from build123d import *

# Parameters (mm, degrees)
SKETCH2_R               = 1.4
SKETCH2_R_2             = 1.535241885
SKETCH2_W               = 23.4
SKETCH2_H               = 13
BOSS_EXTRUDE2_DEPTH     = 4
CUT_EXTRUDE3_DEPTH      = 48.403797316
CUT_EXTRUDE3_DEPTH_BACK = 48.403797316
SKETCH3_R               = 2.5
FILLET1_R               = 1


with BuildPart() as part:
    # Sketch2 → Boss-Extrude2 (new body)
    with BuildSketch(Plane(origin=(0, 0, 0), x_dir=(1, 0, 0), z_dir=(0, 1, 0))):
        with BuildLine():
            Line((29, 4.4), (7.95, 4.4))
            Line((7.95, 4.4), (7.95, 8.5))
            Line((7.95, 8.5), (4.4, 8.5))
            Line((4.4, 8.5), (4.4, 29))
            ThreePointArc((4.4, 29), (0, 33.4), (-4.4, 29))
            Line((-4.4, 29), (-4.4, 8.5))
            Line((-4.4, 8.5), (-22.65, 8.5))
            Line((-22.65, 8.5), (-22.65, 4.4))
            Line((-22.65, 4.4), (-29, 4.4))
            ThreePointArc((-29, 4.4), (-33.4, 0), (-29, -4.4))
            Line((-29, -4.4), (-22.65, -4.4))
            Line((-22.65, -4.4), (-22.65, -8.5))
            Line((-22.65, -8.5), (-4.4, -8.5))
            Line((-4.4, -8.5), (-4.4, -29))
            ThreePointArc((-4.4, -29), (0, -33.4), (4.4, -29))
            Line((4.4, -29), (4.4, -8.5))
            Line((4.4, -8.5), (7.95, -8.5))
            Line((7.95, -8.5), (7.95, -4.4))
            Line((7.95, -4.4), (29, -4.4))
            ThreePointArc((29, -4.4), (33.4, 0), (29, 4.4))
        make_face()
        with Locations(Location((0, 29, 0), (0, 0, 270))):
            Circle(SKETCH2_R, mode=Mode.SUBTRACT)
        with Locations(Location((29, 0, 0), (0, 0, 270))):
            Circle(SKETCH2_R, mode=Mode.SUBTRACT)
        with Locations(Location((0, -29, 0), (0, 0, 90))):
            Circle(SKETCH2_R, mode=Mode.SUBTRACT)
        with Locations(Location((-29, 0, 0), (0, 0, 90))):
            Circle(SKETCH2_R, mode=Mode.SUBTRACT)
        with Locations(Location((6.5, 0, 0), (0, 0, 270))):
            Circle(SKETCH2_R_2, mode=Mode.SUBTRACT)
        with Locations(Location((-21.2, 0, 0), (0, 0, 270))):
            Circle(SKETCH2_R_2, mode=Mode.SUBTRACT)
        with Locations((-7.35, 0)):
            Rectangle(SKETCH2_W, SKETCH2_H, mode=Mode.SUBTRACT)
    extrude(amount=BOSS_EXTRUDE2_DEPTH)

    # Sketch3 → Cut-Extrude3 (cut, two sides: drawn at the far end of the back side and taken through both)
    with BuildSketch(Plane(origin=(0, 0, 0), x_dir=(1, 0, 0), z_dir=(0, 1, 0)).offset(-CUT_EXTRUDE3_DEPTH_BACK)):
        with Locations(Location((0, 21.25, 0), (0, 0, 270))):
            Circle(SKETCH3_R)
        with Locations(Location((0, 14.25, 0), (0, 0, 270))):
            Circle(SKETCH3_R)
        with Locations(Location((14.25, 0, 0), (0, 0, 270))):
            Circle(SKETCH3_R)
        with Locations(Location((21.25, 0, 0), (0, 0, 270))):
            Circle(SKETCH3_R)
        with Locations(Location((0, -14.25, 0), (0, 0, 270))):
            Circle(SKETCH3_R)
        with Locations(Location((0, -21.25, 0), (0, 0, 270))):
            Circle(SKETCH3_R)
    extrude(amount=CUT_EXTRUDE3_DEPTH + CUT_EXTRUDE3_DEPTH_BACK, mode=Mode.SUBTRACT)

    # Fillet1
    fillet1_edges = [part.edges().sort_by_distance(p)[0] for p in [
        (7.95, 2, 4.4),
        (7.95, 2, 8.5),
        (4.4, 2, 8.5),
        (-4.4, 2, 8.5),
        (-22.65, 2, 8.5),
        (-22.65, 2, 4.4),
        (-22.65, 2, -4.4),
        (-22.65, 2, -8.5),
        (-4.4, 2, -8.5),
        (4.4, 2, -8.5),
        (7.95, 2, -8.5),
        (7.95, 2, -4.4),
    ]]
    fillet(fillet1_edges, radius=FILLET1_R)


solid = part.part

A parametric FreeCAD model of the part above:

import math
import FreeCAD as App
import Part
import Sketcher
Q = App.Units.Quantity


def edges_at(feature, points):
    """Names of the edges that pass closest to the given points."""
    edges = feature.Shape.Edges
    near = lambda p: min(range(len(edges)), key=lambda i: edges[i].distToShape(Part.Vertex(*p))[0])
    return sorted({f"Edge{near(p) + 1}" for p in points})


def add_polygon(sketch, points):
    """Adds a closed chain of lines whose ends are joined by coincident constraints."""
    first, n = sketch.GeometryCount, len(points)
    for a, b in zip(points, points[1:] + points[:1]):
        sketch.addGeometry(Part.LineSegment(App.Vector(*a, 0), App.Vector(*b, 0)), False)
    for i in range(n):
        sketch.addConstraint(Sketcher.Constraint("Coincident", first + i, 2, first + (i + 1) % n, 1))

doc = App.newDocument("Part")
body = doc.addObject("PartDesign::Body", "Body")

# Sketch on XZ plane
sketch1 = body.newObject("Sketcher::SketchObject", "Sketch")
sketch1.AttachmentSupport = (doc.getObject("XZ_Plane"), [""])
sketch1.MapMode = "FlatFace"
sketch1.addGeometry(Part.LineSegment(App.Vector(29, -4.4, 0), App.Vector(8, -4.4, 0)), False)  # 0
sketch1.addGeometry(Part.LineSegment(App.Vector(8, -4.4, 0), App.Vector(8, -8.5, 0)), False)  # 1
sketch1.addGeometry(Part.LineSegment(App.Vector(8, -8.5, 0), App.Vector(4.4, -8.5, 0)), False)  # 2
sketch1.addGeometry(Part.LineSegment(App.Vector(4.4, -8.5, 0), App.Vector(4.4, -29, 0)), False)  # 3
sketch1.addGeometry(Part.ArcOfCircle(Part.Circle(App.Vector(0, -29, 0), App.Vector(0, 0, 1), 4.4), math.radians(180), math.radians(360)), False)  # 4
sketch1.addGeometry(Part.LineSegment(App.Vector(-4.4, -29, 0), App.Vector(-4.4, -8.5, 0)), False)  # 5
sketch1.addGeometry(Part.LineSegment(App.Vector(-4.4, -8.5, 0), App.Vector(-22.6, -8.5, 0)), False)  # 6
sketch1.addGeometry(Part.LineSegment(App.Vector(-22.6, -8.5, 0), App.Vector(-22.6, -4.4, 0)), False)  # 7
sketch1.addGeometry(Part.LineSegment(App.Vector(-22.6, -4.4, 0), App.Vector(-29, -4.4, 0)), False)  # 8
sketch1.addGeometry(Part.ArcOfCircle(Part.Circle(App.Vector(-29, 0, 0), App.Vector(0, 0, 1), 4.4), math.radians(90), math.radians(270)), False)  # 9
sketch1.addGeometry(Part.LineSegment(App.Vector(-29, 4.4, 0), App.Vector(-22.6, 4.4, 0)), False)  # 10
sketch1.addGeometry(Part.LineSegment(App.Vector(-22.6, 4.4, 0), App.Vector(-22.6, 8.5, 0)), False)  # 11
sketch1.addGeometry(Part.LineSegment(App.Vector(-22.6, 8.5, 0), App.Vector(-4.4, 8.5, 0)), False)  # 12
sketch1.addGeometry(Part.LineSegment(App.Vector(-4.4, 8.5, 0), App.Vector(-4.4, 29, 0)), False)  # 13
sketch1.addGeometry(Part.ArcOfCircle(Part.Circle(App.Vector(0, 29, 0), App.Vector(0, 0, 1), 4.4), math.radians(0), math.radians(180)), False)  # 14
sketch1.addGeometry(Part.LineSegment(App.Vector(4.4, 29, 0), App.Vector(4.4, 8.5, 0)), False)  # 15
sketch1.addGeometry(Part.LineSegment(App.Vector(4.4, 8.5, 0), App.Vector(8, 8.5, 0)), False)  # 16
sketch1.addGeometry(Part.LineSegment(App.Vector(8, 8.5, 0), App.Vector(8, 4.4, 0)), False)  # 17
sketch1.addGeometry(Part.LineSegment(App.Vector(8, 4.4, 0), App.Vector(29, 4.4, 0)), False)  # 18
sketch1.addGeometry(Part.ArcOfCircle(Part.Circle(App.Vector(29, 0, 0), App.Vector(0, 0, 1), 4.4), math.radians(-90), math.radians(90)), False)  # 19
sketch1.addGeometry(Part.Circle(App.Vector(0, 29, 0), App.Vector(0, 0, 1), 1.4), False)  # 20
sketch1.addGeometry(Part.Circle(App.Vector(-29, 0, 0), App.Vector(0, 0, 1), 1.4), False)  # 21
sketch1.addGeometry(Part.Circle(App.Vector(-21.2, 0, 0), App.Vector(0, 0, 1), 1.5), False)  # 22
add_polygon(sketch1, [(4.3, 6.5), (-19.1, 6.5), (-19.1, -6.5), (4.3, -6.5)])  # lines 23-26
sketch1.addGeometry(Part.Circle(App.Vector(6.5, 0, 0), App.Vector(0, 0, 1), 1.5), False)  # 27
sketch1.addGeometry(Part.Circle(App.Vector(29, 0, 0), App.Vector(0, 0, 1), 1.4), False)  # 28
sketch1.addGeometry(Part.Circle(App.Vector(0, -29, 0), App.Vector(0, 0, 1), 1.4), False)  # 29
sketch1.addConstraint([
    Sketcher.Constraint("Coincident", 0, 2, 1, 1),
    Sketcher.Constraint("Coincident", 1, 2, 2, 1),
    Sketcher.Constraint("Coincident", 2, 2, 3, 1),
    Sketcher.Constraint("Tangent", 3, 2, 4, 2),
    Sketcher.Constraint("Tangent", 4, 1, 5, 1),
    Sketcher.Constraint("Coincident", 5, 2, 6, 1),
    Sketcher.Constraint("Coincident", 6, 2, 7, 1),
    Sketcher.Constraint("Coincident", 7, 2, 8, 1),
    Sketcher.Constraint("Tangent", 8, 2, 9, 2),
    Sketcher.Constraint("Tangent", 9, 1, 10, 1),
    Sketcher.Constraint("Coincident", 10, 2, 11, 1),
    Sketcher.Constraint("Coincident", 11, 2, 12, 1),
    Sketcher.Constraint("Coincident", 12, 2, 13, 1),
    Sketcher.Constraint("Tangent", 13, 2, 14, 2),
    Sketcher.Constraint("Tangent", 14, 1, 15, 1),
    Sketcher.Constraint("Coincident", 15, 2, 16, 1),
    Sketcher.Constraint("Coincident", 16, 2, 17, 1),
    Sketcher.Constraint("Coincident", 17, 2, 18, 1),
    Sketcher.Constraint("Tangent", 18, 2, 19, 2),
    Sketcher.Constraint("Tangent", 19, 1, 0, 1),
    Sketcher.Constraint("Horizontal", 0),
    Sketcher.Constraint("Vertical", 1),
    Sketcher.Constraint("Horizontal", 2),
    Sketcher.Constraint("Vertical", 3),
    Sketcher.Constraint("Vertical", 5),
    Sketcher.Constraint("Horizontal", 6),
    Sketcher.Constraint("Vertical", 7),
    Sketcher.Constraint("Horizontal", 8),
    Sketcher.Constraint("Horizontal", 10),
    Sketcher.Constraint("Vertical", 11),
    Sketcher.Constraint("Horizontal", 12),
    Sketcher.Constraint("Vertical", 13),
    Sketcher.Constraint("Vertical", 15),
    Sketcher.Constraint("Horizontal", 16),
    Sketcher.Constraint("Vertical", 17),
    Sketcher.Constraint("Horizontal", 18),
    Sketcher.Constraint("Horizontal", 23),
    Sketcher.Constraint("Vertical", 24),
    Sketcher.Constraint("Horizontal", 25),
    Sketcher.Constraint("Vertical", 26),
    Sketcher.Constraint("Coincident", 20, 3, 14, 3),
    Sketcher.Constraint("Coincident", 21, 3, 9, 3),
    Sketcher.Constraint("Coincident", 28, 3, 19, 3),
    Sketcher.Constraint("Coincident", 29, 3, 4, 3),
    Sketcher.Constraint("Equal", 4, 9),
    Sketcher.Constraint("Equal", 9, 14),
    Sketcher.Constraint("Equal", 14, 19),
    Sketcher.Constraint("Equal", 20, 21),
    Sketcher.Constraint("Equal", 22, 27),
    Sketcher.Constraint("Equal", 21, 28),
    Sketcher.Constraint("Equal", 28, 29),
    Sketcher.Constraint("Symmetric", 4, 3, 14, 3, -1, 1),
    Sketcher.Constraint("Symmetric", 9, 3, 19, 3, -1, 1),
    Sketcher.Constraint("Symmetric", 2, 2, 5, 2, -2),
    Sketcher.Constraint("Symmetric", 7, 2, 10, 2, -1),
    Sketcher.Constraint("Symmetric", 1, 2, 16, 2, -1),
    Sketcher.Constraint("PointOnObject", 22, 3, -1),
    Sketcher.Constraint("PointOnObject", 27, 3, -1),
    Sketcher.Constraint("Horizontal", 12, 2, 15, 2),
    Sketcher.Constraint("Diameter", 20, Q("2.8 mm")),
    Sketcher.Constraint("Radius", 4, Q("4.4 mm")),
    Sketcher.Constraint("DistanceY", 24, 2, 24, 1, Q("13 mm")),
    Sketcher.Constraint("DistanceX", 23, 2, 23, 1, Q("23.4 mm")),
    Sketcher.Constraint("DistanceY", 1, 2, 1, 1, Q("4.1 mm")),
    Sketcher.Constraint("DistanceY", 3, 2, 3, 1, Q("20.5 mm")),
    Sketcher.Constraint("DistanceX", 9, 3, -1, 1, Q("29 mm")),
    Sketcher.Constraint("DistanceY", 23, 2, 11, 2, Q("2 mm")),
    Sketcher.Constraint("DistanceX", 0, 2, 0, 1, Q("21.05 mm")),
    Sketcher.Constraint("DistanceX", 6, 2, 6, 1, Q("18.25 mm")),
    Sketcher.Constraint("DistanceX", 22, 3, -1, 1, Q("21.2 mm")),
    Sketcher.Constraint("DistanceX", -1, 1, 27, 3, Q("6.5 mm")),
    Sketcher.Constraint("DistanceX", 11, 2, 23, 2, Q("3.6 mm")),
    Sketcher.Constraint("Diameter", 22, Q("3.070484 mm")),
])
pad1 = body.newObject("PartDesign::Pad", "Pad")
pad1.Profile = sketch1
pad1.Length = 4
pad1.Reversed = True

# Sketch on XZ plane
sketch2 = body.newObject("Sketcher::SketchObject", "Sketch001")
sketch2.AttachmentSupport = (doc.getObject("XZ_Plane"), [""])
sketch2.MapMode = "FlatFace"
sketch2.addGeometry([
    Part.Circle(App.Vector(0, -21.2, 0), App.Vector(0, 0, 1), 2.5),  # 0
    Part.Circle(App.Vector(0, -14.2, 0), App.Vector(0, 0, 1), 2.5),  # 1
    Part.Circle(App.Vector(14.2, 0, 0), App.Vector(0, 0, 1), 2.5),  # 2
    Part.Circle(App.Vector(21.2, 0, 0), App.Vector(0, 0, 1), 2.5),  # 3
    Part.Circle(App.Vector(0, 14.2, 0), App.Vector(0, 0, 1), 2.5),  # 4
    Part.Circle(App.Vector(0, 21.2, 0), App.Vector(0, 0, 1), 2.5),  # 5
], False)
sketch2.addConstraint([
    Sketcher.Constraint("Equal", 0, 1),
    Sketcher.Constraint("Equal", 1, 2),
    Sketcher.Constraint("Equal", 2, 3),
    Sketcher.Constraint("Equal", 3, 4),
    Sketcher.Constraint("Equal", 4, 5),
    Sketcher.Constraint("Symmetric", 1, 3, 4, 3, -1, 1),
    Sketcher.Constraint("Symmetric", 0, 3, 5, 3, -1, 1),
    Sketcher.Constraint("PointOnObject", 0, 3, -2),
    Sketcher.Constraint("PointOnObject", 1, 3, -2),
    Sketcher.Constraint("PointOnObject", 2, 3, -1),
    Sketcher.Constraint("PointOnObject", 3, 3, -1),
    Sketcher.Constraint("Diameter", 0, Q("5 mm")),
    Sketcher.Constraint("DistanceY", 0, 3, 1, 3, Q("7 mm")),
    Sketcher.Constraint("DistanceX", 2, 3, 3, 3, Q("7 mm")),
    Sketcher.Constraint("DistanceY", 1, 3, 4, 3, Q("28.5 mm")),
    Sketcher.Constraint("DistanceX", -1, 1, 2, 3, Q("14.25 mm")),
])
pocket1 = body.newObject("PartDesign::Pocket", "Pocket")
pocket1.Profile = sketch2
pocket1.Type = "ThroughAll"
pocket1.Midplane = True
doc.recompute()

fillet = body.newObject("PartDesign::Fillet", "Fillet")
fillet.Base = (pocket1, edges_at(pocket1, [
    (7.95, 2, 4.4),
    (7.95, 2, 8.5),
    (4.4, 2, 8.5),
    (-4.4, 2, 8.5),
    (-22.65, 2, 8.5),
    (-22.65, 2, 4.4),
    (-22.65, 2, -4.4),
    (-22.65, 2, -8.5),
    (-4.4, 2, -8.5),
    (4.4, 2, -8.5),
    (7.95, 2, -8.5),
    (7.95, 2, -4.4),
]))
fillet.Radius = 1

doc.recompute()
